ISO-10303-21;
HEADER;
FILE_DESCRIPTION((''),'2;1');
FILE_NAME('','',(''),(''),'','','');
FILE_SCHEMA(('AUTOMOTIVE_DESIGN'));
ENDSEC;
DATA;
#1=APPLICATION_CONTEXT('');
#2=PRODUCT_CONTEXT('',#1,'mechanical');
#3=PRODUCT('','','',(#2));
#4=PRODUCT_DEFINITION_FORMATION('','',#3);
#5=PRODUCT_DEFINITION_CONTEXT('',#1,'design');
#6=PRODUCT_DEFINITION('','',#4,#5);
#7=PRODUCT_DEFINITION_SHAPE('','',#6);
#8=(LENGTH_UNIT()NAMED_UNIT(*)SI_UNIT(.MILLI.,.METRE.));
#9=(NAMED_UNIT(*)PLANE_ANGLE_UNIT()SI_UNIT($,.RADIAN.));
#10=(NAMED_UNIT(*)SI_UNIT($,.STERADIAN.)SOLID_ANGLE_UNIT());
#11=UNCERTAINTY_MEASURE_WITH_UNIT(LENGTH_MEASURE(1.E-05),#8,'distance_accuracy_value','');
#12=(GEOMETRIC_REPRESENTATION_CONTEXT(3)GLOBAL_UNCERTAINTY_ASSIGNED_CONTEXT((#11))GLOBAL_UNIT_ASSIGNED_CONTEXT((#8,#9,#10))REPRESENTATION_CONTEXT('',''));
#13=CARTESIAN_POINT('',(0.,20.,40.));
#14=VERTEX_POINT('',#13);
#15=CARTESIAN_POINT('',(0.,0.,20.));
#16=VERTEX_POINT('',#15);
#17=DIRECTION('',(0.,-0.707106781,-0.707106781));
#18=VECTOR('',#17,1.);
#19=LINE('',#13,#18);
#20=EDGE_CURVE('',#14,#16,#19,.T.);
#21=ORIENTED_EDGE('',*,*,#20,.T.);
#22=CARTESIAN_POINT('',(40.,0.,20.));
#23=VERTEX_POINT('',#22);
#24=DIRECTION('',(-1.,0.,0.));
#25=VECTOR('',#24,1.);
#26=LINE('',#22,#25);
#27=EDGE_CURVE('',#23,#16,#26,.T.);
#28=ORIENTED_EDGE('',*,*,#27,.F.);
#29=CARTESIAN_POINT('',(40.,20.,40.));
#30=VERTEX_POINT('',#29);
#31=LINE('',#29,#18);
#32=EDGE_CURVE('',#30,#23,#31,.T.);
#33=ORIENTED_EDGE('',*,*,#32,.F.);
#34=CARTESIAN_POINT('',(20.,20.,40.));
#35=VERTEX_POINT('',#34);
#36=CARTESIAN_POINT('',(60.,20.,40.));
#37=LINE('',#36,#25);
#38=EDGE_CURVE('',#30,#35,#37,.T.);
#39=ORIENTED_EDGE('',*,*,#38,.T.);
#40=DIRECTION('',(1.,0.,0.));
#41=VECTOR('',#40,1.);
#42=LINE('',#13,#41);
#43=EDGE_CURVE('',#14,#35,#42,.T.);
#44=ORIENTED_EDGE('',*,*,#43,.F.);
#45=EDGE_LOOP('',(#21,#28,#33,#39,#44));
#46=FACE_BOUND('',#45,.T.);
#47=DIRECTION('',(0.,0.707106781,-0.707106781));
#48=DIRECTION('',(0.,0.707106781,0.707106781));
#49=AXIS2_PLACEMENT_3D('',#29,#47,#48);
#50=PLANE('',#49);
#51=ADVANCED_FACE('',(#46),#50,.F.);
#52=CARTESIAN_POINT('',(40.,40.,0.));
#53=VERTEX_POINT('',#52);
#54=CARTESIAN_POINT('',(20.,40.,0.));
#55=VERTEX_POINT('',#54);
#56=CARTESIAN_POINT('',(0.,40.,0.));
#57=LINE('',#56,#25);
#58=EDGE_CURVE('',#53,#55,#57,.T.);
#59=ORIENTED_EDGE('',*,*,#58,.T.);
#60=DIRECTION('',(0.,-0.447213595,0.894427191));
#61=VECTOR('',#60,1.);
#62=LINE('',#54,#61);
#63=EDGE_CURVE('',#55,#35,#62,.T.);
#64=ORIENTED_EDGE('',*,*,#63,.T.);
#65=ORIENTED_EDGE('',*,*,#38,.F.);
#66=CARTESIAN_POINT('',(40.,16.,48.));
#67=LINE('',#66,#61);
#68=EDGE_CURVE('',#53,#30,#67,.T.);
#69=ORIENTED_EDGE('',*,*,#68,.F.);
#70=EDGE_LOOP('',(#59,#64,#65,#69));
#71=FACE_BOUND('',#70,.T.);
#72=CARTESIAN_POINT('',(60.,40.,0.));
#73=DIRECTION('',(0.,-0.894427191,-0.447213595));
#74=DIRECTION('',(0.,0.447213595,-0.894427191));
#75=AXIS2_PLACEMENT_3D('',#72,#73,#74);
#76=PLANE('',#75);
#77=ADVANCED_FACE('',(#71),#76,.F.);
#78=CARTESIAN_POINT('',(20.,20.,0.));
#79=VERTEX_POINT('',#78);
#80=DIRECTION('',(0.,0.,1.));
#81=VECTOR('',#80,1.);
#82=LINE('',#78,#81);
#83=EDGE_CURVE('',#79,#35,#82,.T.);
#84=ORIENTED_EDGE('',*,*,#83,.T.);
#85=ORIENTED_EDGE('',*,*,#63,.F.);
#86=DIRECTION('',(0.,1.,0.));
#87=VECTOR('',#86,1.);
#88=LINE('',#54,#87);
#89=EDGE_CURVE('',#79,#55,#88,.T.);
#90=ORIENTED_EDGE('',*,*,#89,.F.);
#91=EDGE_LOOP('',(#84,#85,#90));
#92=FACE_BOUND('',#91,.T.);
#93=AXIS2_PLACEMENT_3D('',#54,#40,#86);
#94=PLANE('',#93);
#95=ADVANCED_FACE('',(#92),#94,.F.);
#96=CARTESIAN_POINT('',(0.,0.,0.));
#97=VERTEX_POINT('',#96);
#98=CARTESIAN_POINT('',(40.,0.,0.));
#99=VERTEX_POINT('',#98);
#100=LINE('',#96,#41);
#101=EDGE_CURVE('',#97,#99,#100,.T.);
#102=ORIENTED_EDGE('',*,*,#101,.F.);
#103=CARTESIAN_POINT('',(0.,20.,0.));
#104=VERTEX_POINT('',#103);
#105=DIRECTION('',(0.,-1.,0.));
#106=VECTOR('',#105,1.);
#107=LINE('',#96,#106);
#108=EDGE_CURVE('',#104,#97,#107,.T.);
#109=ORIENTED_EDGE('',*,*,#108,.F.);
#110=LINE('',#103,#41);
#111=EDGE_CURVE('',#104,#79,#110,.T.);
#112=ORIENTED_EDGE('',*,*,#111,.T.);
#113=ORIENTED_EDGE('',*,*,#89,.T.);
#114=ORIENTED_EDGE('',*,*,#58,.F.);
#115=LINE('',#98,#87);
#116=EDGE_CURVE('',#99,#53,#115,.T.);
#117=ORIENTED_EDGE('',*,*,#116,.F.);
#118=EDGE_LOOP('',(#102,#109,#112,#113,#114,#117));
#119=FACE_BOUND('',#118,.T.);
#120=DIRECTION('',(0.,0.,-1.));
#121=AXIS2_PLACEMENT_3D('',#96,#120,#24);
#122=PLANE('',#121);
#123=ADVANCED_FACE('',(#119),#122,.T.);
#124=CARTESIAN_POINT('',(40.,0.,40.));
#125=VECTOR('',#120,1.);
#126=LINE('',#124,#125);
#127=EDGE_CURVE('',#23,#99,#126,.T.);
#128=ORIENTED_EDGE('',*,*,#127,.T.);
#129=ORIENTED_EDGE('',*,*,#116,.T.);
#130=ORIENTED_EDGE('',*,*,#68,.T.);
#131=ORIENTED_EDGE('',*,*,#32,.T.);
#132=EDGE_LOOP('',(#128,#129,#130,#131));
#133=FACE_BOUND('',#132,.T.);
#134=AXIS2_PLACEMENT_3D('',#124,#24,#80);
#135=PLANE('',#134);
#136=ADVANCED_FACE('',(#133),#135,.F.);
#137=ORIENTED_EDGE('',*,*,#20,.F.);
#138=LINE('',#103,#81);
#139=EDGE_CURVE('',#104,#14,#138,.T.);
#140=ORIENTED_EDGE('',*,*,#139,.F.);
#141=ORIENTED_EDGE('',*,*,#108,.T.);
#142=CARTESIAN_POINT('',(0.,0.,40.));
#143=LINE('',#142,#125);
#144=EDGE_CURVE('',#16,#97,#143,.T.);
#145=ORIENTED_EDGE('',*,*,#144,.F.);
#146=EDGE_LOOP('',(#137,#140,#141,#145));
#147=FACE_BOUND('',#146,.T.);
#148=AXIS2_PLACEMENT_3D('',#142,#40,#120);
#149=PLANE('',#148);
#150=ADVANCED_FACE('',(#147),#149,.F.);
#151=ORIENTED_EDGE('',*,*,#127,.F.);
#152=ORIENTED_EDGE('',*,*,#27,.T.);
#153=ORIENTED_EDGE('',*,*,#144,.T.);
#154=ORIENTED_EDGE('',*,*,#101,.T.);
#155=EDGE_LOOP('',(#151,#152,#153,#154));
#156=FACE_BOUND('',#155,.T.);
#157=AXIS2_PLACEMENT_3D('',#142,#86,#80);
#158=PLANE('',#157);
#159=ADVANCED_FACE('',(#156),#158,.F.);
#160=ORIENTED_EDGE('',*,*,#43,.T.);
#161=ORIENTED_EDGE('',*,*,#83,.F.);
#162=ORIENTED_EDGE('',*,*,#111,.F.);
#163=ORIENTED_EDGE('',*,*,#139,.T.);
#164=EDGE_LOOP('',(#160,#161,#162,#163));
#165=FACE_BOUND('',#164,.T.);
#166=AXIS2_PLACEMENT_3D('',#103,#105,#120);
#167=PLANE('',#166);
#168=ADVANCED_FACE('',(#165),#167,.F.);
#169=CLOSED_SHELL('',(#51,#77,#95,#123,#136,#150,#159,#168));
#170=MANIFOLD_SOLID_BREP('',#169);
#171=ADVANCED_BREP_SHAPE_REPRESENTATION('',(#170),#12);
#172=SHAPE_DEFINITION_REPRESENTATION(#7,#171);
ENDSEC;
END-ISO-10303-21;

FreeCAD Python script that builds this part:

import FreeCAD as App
import Part
import Sketcher

V = App.Vector

doc = App.newDocument("Part")
body = doc.addObject("PartDesign::Body", "Body")

sketch1 = body.newObject("Sketcher::SketchObject", "Sketch")
sketch1.AttachmentSupport = (doc.getObject("XY_Plane"), [""])
sketch1.MapMode = "FlatFace"
sketch1.addGeometry([
    Part.LineSegment(V(0, 40, 0), V(0, 0, 0)),
    Part.LineSegment(V(0, 0, 0), V(40, 0, 0)),
    Part.LineSegment(V(40, 0, 0), V(40, 40, 0)),
    Part.LineSegment(V(40, 40, 0), V(0, 40, 0)),
], False)
sketch1.addConstraint([
    Sketcher.Constraint("Coincident", 0, 2, 1, 1),
    Sketcher.Constraint("Coincident", 1, 2, 2, 1),
    Sketcher.Constraint("Coincident", 2, 2, 3, 1),
    Sketcher.Constraint("Coincident", 3, 2, 0, 1),
    Sketcher.Constraint("Vertical", 0),
    Sketcher.Constraint("Horizontal", 1),
    Sketcher.Constraint("Vertical", 2),
    Sketcher.Constraint("Horizontal", 3),
    Sketcher.Constraint("Coincident", 0, 2, -1, 1),
    Sketcher.Constraint("Equal", 3, 0),
    Sketcher.Constraint("DistanceX", 1, 1, 1, 2, 40.0),
])
pad1 = body.newObject("PartDesign::Pad", "Pad")
pad1.Profile = sketch1
pad1.Length = 40

sketch2 = body.newObject("Sketcher::SketchObject", "Sketch001")
sketch2.AttachmentSupport = (doc.getObject("XY_Plane"), [""])
sketch2.MapMode = "FlatFace"
sketch2.AttachmentOffset = App.Placement(V(0, 0, 40), App.Rotation())
sketch2.addGeometry([
    Part.LineSegment(V(0, 40, 0), V(0, 20, 0)),
    Part.LineSegment(V(0, 20, 0), V(20, 20, 0)),
    Part.LineSegment(V(20, 20, 0), V(20, 40, 0)),
    Part.LineSegment(V(20, 40, 0), V(0, 40, 0)),
], False)
sketch2.addConstraint([
    Sketcher.Constraint("Coincident", 0, 2, 1, 1),
    Sketcher.Constraint("Coincident", 1, 2, 2, 1),
    Sketcher.Constraint("Coincident", 2, 2, 3, 1),
    Sketcher.Constraint("Coincident", 3, 2, 0, 1),
    Sketcher.Constraint("Vertical", 0),
    Sketcher.Constraint("Horizontal", 1),
    Sketcher.Constraint("Vertical", 2),
    Sketcher.Constraint("Horizontal", 3),
    Sketcher.Constraint("PointOnObject", 0, 2, -2),
    Sketcher.Constraint("Equal", 3, 0),
    Sketcher.Constraint("DistanceX", 1, 1, 1, 2, 20.0),
    Sketcher.Constraint("DistanceY", -1, 1, 0, 2, 20.0),
])
pocket1 = body.newObject("PartDesign::Pocket", "Pocket")
pocket1.Profile = sketch2
pocket1.Length = 40

sketch3 = body.newObject("Sketcher::SketchObject", "Sketch002")
sketch3.AttachmentSupport = (doc.getObject("YZ_Plane"), [""])
sketch3.MapMode = "FlatFace"
sketch3.AttachmentOffset = App.Placement(V(0, 0, 20), App.Rotation())
sketch3.addGeometry([
    Part.LineSegment(V(40, 0, 0), V(20, 40, 0)),
    Part.LineSegment(V(20, 40, 0), V(40, 40, 0)),
    Part.LineSegment(V(40, 40, 0), V(40, 0, 0)),
], False)
sketch3.addConstraint([
    Sketcher.Constraint("Coincident", 0, 2, 1, 1),
    Sketcher.Constraint("Coincident", 1, 2, 2, 1),
    Sketcher.Constraint("Coincident", 2, 2, 0, 1),
    Sketcher.Constraint("Horizontal", 1),
    Sketcher.Constraint("Vertical", 2),
    Sketcher.Constraint("PointOnObject", 2, 2, -1),
    Sketcher.Constraint("DistanceX", 1, 1, 1, 2, 20.0),
    Sketcher.Constraint("DistanceY", 2, 2, 2, 1, 40.0),
    Sketcher.Constraint("DistanceX", -1, 1, 0, 2, 20.0),
])
pocket2 = body.newObject("PartDesign::Pocket", "Pocket001")
pocket2.Profile = sketch3
pocket2.Length = 40
pocket2.Reversed = True

sketch4 = body.newObject("Sketcher::SketchObject", "Sketch003")
sketch4.AttachmentSupport = (doc.getObject("YZ_Plane"), [""])
sketch4.MapMode = "FlatFace"
sketch4.addGeometry([
    Part.LineSegment(V(20, 40, 0), V(0, 20, 0)),
    Part.LineSegment(V(0, 20, 0), V(0, 40, 0)),
    Part.LineSegment(V(0, 40, 0), V(20, 40, 0)),
], False)
sketch4.addConstraint([
    Sketcher.Constraint("Coincident", 0, 2, 1, 1),
    Sketcher.Constraint("Coincident", 1, 2, 2, 1),
    Sketcher.Constraint("Coincident", 2, 2, 0, 1),
    Sketcher.Constraint("Vertical", 1),
    Sketcher.Constraint("Horizontal", 2),
    Sketcher.Constraint("PointOnObject", 0, 2, -2),
    Sketcher.Constraint("Equal", 2, 1),
    Sketcher.Constraint("DistanceX", 2, 1, 2, 2, 20.0),
    Sketcher.Constraint("DistanceY", -1, 1, 0, 2, 20.0),
])
pocket3 = body.newObject("PartDesign::Pocket", "Pocket002")
pocket3.Profile = sketch4
pocket3.Length = 40
pocket3.Reversed = True

doc.recompute()
